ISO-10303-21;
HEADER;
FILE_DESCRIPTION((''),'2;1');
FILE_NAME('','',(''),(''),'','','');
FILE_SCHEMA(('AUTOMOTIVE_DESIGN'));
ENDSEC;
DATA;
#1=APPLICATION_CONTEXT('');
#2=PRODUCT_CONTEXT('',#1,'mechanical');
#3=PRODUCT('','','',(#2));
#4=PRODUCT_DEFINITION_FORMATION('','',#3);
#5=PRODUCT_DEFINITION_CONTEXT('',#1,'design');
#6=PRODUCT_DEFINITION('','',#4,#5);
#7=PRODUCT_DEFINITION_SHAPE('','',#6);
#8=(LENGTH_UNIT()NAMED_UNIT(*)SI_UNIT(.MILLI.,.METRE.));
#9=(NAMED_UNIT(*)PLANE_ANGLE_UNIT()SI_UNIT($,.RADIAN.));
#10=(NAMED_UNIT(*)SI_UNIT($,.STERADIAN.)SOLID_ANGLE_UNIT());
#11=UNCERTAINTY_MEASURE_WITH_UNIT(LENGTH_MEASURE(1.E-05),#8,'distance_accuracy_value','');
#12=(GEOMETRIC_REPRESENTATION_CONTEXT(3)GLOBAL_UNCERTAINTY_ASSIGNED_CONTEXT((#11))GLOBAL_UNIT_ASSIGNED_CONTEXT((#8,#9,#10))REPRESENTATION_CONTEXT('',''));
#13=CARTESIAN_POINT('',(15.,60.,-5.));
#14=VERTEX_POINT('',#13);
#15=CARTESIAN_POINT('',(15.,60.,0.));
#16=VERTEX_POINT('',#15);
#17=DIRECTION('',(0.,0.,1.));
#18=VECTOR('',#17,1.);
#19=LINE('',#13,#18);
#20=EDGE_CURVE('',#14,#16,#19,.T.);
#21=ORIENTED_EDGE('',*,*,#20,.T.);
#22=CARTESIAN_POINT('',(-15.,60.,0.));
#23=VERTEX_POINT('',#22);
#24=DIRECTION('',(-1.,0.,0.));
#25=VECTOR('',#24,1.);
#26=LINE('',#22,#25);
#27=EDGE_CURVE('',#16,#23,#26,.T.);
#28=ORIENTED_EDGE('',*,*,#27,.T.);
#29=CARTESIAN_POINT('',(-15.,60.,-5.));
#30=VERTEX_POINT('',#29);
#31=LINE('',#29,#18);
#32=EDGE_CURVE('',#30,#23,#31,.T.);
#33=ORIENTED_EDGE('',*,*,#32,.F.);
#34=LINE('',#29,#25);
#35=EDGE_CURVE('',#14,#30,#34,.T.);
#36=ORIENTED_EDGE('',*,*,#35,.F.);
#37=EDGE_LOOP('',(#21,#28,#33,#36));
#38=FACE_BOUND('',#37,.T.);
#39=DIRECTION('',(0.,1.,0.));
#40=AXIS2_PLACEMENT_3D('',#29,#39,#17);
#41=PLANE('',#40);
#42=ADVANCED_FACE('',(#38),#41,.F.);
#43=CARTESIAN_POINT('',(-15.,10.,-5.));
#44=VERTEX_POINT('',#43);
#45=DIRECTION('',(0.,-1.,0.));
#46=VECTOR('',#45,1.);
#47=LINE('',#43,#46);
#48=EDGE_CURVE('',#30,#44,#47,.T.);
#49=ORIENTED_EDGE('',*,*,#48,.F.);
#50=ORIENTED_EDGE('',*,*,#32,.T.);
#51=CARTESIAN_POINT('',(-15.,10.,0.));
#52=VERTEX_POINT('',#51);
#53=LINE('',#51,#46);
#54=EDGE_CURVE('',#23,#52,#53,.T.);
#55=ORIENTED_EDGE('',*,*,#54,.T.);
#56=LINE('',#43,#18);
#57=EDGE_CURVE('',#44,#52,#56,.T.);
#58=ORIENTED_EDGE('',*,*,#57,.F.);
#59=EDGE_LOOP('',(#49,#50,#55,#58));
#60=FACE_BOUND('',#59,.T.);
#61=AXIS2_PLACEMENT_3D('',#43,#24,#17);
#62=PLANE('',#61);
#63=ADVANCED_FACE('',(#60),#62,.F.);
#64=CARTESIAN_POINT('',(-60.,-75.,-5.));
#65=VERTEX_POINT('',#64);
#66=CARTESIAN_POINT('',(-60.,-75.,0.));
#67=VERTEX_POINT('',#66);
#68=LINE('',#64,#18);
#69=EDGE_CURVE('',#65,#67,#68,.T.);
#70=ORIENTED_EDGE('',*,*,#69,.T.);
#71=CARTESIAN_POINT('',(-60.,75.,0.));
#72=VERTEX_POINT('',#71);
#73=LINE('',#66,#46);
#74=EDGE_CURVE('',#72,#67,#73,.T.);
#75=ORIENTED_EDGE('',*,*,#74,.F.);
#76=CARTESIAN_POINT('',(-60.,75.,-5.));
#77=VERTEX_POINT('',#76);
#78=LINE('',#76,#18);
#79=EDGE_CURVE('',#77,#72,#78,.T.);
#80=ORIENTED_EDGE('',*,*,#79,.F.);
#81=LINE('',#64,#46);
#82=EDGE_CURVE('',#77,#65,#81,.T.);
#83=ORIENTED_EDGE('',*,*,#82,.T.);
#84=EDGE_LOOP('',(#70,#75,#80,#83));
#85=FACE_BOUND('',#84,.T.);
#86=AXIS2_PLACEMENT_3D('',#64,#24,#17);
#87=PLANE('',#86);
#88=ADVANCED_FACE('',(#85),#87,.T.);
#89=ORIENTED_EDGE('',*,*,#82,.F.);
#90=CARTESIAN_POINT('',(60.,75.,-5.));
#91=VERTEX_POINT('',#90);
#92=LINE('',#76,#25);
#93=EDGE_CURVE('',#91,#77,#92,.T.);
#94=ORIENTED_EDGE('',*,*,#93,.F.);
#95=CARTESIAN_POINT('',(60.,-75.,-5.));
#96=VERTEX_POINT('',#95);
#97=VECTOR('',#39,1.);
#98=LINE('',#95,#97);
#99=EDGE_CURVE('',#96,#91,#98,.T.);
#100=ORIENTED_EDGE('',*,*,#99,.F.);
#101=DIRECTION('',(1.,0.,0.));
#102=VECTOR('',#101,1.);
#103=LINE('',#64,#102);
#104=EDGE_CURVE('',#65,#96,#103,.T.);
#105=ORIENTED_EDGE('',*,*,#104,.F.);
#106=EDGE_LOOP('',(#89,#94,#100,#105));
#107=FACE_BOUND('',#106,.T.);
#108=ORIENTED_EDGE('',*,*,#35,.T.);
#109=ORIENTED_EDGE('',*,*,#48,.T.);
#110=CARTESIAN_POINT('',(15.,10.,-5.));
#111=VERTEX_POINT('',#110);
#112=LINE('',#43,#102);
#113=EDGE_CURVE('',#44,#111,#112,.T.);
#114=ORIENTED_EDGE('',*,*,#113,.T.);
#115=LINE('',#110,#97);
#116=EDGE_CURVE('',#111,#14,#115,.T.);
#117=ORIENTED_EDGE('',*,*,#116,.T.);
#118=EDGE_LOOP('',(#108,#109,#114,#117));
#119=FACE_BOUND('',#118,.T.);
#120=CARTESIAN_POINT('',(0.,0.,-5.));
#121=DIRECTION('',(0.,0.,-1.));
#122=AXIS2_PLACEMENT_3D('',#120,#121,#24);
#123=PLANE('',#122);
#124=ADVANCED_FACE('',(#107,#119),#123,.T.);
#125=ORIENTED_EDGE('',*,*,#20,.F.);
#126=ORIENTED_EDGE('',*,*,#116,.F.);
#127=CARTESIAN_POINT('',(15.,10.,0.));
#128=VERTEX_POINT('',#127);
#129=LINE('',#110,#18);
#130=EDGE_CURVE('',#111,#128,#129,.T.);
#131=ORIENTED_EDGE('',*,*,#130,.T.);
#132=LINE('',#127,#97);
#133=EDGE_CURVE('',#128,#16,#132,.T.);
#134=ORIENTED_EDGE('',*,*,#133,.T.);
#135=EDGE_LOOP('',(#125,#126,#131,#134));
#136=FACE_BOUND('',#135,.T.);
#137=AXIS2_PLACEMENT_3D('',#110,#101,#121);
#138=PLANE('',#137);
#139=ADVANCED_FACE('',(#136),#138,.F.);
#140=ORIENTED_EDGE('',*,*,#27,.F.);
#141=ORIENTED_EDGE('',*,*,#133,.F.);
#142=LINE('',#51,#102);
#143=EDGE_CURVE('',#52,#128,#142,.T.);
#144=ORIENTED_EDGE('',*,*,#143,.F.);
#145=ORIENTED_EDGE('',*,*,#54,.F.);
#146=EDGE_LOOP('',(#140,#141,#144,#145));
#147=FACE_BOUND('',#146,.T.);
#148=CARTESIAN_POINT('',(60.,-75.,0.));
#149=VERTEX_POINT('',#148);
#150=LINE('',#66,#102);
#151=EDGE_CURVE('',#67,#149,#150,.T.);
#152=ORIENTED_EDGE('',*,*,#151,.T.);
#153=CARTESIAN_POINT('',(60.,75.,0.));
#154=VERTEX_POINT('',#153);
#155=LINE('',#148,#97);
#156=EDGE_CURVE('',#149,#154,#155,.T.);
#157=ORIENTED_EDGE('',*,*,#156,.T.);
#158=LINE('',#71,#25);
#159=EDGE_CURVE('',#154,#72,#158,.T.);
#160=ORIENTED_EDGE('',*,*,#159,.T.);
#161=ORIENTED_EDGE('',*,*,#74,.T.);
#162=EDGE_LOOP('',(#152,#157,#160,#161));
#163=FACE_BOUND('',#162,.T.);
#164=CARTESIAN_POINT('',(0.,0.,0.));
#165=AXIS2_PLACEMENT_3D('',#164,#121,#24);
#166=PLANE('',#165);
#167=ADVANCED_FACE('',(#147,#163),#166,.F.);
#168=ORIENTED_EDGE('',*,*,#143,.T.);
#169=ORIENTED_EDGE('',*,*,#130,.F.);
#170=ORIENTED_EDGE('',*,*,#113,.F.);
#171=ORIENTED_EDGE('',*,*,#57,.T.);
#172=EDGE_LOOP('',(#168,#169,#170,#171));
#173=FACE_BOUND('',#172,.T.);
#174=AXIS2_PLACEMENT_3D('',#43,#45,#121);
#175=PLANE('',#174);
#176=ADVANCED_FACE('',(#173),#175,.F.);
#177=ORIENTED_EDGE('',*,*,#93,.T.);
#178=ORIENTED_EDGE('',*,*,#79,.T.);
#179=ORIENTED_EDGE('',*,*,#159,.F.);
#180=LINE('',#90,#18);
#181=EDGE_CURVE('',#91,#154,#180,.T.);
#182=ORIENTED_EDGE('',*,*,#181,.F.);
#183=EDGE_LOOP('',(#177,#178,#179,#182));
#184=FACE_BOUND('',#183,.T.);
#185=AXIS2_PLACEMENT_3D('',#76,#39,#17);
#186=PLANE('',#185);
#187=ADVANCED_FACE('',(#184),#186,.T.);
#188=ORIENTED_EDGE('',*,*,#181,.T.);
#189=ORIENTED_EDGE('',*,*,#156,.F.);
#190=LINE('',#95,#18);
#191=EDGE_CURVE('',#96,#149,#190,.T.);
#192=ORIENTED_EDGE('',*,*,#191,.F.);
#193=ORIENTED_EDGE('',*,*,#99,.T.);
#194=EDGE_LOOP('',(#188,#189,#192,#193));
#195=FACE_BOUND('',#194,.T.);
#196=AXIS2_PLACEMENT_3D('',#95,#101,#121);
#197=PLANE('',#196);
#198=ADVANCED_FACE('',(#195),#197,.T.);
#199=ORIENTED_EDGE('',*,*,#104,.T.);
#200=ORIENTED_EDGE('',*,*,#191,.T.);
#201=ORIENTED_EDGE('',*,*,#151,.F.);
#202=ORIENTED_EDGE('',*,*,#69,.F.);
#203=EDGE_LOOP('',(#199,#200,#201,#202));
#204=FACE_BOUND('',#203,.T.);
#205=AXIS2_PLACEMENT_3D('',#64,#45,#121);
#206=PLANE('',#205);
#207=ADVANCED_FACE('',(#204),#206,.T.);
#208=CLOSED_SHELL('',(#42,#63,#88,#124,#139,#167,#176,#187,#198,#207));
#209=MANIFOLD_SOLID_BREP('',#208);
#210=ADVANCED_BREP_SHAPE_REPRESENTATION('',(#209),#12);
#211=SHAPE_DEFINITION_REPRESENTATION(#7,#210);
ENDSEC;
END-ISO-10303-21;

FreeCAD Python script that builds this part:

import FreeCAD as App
import Part
import Sketcher


def add_polygon(sketch, points):
    """Adds a closed chain of lines whose ends are joined by coincident constraints."""
    first, n = sketch.GeometryCount, len(points)
    for a, b in zip(points, points[1:] + points[:1]):
        sketch.addGeometry(Part.LineSegment(App.Vector(*a, 0), App.Vector(*b, 0)), False)
    for i in range(n):
        sketch.addConstraint(Sketcher.Constraint("Coincident", first + i, 2, first + (i + 1) % n, 1))

doc = App.newDocument("Part")
body = doc.addObject("PartDesign::Body", "Body")

sketch1 = body.newObject("Sketcher::SketchObject", "Sketch")
sketch1.AttachmentSupport = (doc.getObject("XY_Plane"), [""])
sketch1.MapMode = "FlatFace"
add_polygon(sketch1, [(-60, 75), (-60, -75), (60, -75), (60, 75)])
add_polygon(sketch1, [(15, 10), (-15, 10), (-15, 60), (15, 60)])
sketch1.addConstraint([
    Sketcher.Constraint("Vertical", 0),
    Sketcher.Constraint("Horizontal", 1),
    Sketcher.Constraint("Vertical", 2),
    Sketcher.Constraint("Horizontal", 3),
    Sketcher.Constraint("Horizontal", 4),
    Sketcher.Constraint("Vertical", 5),
    Sketcher.Constraint("Horizontal", 6),
    Sketcher.Constraint("Vertical", 7),
    Sketcher.Constraint("Symmetric", 0, 2, 2, 2, -1, 1),
    Sketcher.Constraint("DistanceX", 1, 1, 1, 2, 120.0),
    Sketcher.Constraint("DistanceX", 4, 2, 4, 1, 30.0),
    Sketcher.Constraint("DistanceY", 0, 2, 0, 1, 150.0),
    Sketcher.Constraint("DistanceY", 5, 1, 5, 2, 50.0),
    Sketcher.Constraint("DistanceX", 4, 2, -1, 1, 15.0),
    Sketcher.Constraint("DistanceY", -1, 1, 4, 2, 10.0),
])
pad1 = body.newObject("PartDesign::Pad", "Pad")
pad1.Profile = sketch1
pad1.Length = 5
pad1.Reversed = True

doc.recompute()
